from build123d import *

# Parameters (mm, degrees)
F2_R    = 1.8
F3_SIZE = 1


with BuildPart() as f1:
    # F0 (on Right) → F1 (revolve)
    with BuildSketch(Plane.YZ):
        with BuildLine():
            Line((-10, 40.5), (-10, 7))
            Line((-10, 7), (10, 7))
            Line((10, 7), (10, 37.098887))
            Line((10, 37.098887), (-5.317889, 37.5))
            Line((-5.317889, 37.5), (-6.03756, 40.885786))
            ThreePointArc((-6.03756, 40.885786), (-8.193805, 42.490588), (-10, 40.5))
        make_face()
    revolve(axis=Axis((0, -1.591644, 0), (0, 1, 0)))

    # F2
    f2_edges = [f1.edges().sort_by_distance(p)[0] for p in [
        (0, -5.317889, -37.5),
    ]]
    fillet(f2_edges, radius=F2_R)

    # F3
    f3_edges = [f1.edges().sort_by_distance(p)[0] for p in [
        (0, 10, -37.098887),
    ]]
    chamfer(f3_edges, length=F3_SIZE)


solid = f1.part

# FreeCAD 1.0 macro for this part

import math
import FreeCAD as App
import Part
import Sketcher
from FreeCAD import Vector
Q = App.Units.Quantity


def edges_at(feature, points):
    """Names of the edges that pass closest to the given points."""
    edges = feature.Shape.Edges
    near = lambda p: min(range(len(edges)), key=lambda i: edges[i].distToShape(Part.Vertex(*p))[0])
    return sorted({f"Edge{near(p) + 1}" for p in points})

doc = App.newDocument("Part")
body = doc.addObject("PartDesign::Body", "Body")

# Sketch on YZ plane
sketch1 = body.newObject("Sketcher::SketchObject", "Sketch")
sketch1.AttachmentSupport = (doc.getObject("YZ_Plane"), [""])
sketch1.MapMode = "FlatFace"
sketch1.addGeometry([
    Part.LineSegment(Vector(-10, 40.5, 0), Vector(-10, 7, 0)),  # 0
    Part.LineSegment(Vector(-10, 7, 0), Vector(10, 7, 0)),  # 1
    Part.LineSegment(Vector(10, 7, 0), Vector(10, 37.1, 0)),  # 2
    Part.LineSegment(Vector(10, 37.1, 0), Vector(-5.3, 37.5, 0)),  # 3
    Part.LineSegment(Vector(-5.3, 37.5, 0), Vector(-6, 40.9, 0)),  # 4
    Part.ArcOfCircle(Part.Circle(Vector(-8, 40.5, 0), Vector(0, 0, 1), 2), math.radians(11), math.radians(180)),  # 5
], False)
sketch1.addConstraint([
    Sketcher.Constraint("Coincident", 0, 2, 1, 1),
    Sketcher.Constraint("Coincident", 1, 2, 2, 1),
    Sketcher.Constraint("Coincident", 2, 2, 3, 1),
    Sketcher.Constraint("Coincident", 3, 2, 4, 1),
    Sketcher.Constraint("Coincident", 4, 2, 5, 1),
    Sketcher.Constraint("Tangent", 5, 2, 0, 1),
    Sketcher.Constraint("Vertical", 0),
    Sketcher.Constraint("Horizontal", 1),
    Sketcher.Constraint("Vertical", 2),
    Sketcher.Constraint("Radius", 5, Q("2 mm")),
    Sketcher.Constraint("DistanceX", 1, 1, 1, 2, Q("20 mm")),
    Sketcher.Constraint("Angle", 4, Q("102 deg")),
    Sketcher.Constraint("DistanceY", 0, 2, 0, 1, Q("33.5 mm")),
    Sketcher.Constraint("DistanceX", 5, 3, -1, 1, Q("8 mm")),
    Sketcher.Constraint("DistanceY", -1, 1, 0, 2, Q("7 mm")),
    Sketcher.Constraint("Angle", 3, Q("178.5 deg")),
    Sketcher.Constraint("DistanceY", 3, 2, 5, 3, Q("3 mm")),
    Sketcher.Constraint("DistanceY", 2, 2, 4, 2, Q("3.786899 mm")),
])
revolution = body.newObject("PartDesign::Revolution", "Revolution")
revolution.Profile = sketch1
revolution.ReferenceAxis = (sketch1, ["H_Axis"])
revolution.Angle = 360
doc.recompute()

fillet = body.newObject("PartDesign::Fillet", "Fillet")
fillet.Base = (revolution, edges_at(revolution, [(0, -5.318, -37.5)]))
fillet.Radius = 1.8
doc.recompute()

chamfer = body.newObject("PartDesign::Chamfer", "Chamfer")
chamfer.Base = (fillet, edges_at(fillet, [(0, 10, -37.099)]))
chamfer.Size = 1

doc.recompute()
